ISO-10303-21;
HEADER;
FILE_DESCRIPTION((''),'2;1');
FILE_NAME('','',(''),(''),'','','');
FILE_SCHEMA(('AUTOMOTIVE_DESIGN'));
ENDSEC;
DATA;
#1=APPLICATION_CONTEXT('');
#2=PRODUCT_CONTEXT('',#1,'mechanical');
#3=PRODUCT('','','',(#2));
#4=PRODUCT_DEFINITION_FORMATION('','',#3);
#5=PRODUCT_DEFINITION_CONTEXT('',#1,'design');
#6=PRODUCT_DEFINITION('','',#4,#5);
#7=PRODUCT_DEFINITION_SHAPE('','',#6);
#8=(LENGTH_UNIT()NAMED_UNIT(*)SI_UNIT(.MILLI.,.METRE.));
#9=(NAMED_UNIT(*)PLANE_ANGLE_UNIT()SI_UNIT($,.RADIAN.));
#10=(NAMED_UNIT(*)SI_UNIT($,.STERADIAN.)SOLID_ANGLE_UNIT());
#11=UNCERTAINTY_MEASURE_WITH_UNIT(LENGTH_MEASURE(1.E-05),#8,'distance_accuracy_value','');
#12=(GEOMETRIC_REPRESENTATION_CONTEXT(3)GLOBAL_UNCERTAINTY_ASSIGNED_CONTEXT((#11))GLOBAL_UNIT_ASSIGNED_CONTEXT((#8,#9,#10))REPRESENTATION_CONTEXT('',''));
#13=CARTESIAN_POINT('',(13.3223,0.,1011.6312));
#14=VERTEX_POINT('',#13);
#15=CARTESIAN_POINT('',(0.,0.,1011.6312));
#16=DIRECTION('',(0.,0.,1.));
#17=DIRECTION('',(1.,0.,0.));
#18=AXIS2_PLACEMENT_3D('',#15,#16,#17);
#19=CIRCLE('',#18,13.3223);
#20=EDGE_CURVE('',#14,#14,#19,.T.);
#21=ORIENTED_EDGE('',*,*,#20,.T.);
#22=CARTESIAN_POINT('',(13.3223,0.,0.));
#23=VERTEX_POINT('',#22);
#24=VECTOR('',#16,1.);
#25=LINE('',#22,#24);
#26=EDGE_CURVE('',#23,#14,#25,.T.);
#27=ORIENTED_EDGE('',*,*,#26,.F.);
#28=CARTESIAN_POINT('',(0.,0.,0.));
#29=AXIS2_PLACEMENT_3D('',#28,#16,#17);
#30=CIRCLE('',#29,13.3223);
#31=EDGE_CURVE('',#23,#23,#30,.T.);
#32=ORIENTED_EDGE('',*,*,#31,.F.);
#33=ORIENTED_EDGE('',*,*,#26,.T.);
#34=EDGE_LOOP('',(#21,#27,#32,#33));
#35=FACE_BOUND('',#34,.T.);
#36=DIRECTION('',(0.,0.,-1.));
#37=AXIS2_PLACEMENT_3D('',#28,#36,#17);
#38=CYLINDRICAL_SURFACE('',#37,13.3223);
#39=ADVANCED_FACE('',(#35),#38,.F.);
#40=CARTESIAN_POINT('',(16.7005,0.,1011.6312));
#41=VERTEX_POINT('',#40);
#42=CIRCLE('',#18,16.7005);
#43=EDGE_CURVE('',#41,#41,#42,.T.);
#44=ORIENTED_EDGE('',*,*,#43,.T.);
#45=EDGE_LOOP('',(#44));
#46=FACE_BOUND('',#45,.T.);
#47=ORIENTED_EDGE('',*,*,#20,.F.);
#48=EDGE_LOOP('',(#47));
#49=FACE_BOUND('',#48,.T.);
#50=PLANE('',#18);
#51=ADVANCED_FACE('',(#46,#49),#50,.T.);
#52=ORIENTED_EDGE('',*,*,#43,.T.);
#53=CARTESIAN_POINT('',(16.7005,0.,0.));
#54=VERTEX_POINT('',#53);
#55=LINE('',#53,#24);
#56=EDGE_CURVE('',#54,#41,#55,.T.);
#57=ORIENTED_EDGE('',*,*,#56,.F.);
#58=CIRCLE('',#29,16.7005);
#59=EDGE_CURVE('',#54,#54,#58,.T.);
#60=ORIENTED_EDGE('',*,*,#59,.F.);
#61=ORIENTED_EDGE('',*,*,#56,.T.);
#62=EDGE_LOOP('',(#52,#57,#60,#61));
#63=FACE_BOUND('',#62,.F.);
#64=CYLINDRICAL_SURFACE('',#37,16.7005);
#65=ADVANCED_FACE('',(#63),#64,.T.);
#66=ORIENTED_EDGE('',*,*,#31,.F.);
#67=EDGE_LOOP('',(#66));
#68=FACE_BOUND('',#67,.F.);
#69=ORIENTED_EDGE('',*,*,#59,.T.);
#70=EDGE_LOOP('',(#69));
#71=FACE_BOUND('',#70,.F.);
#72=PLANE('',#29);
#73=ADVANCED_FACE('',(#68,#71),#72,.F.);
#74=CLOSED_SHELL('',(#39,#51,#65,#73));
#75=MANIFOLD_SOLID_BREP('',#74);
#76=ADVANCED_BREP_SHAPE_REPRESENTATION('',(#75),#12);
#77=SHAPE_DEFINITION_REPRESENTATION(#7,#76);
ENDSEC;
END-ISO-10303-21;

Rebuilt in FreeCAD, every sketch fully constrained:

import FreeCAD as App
import Part
import Sketcher
Q = App.Units.Quantity

doc = App.newDocument("Part")
body = doc.addObject("PartDesign::Body", "Body")

# Sketch on XY plane
sketch1 = body.newObject("Sketcher::SketchObject", "Sketch")
sketch1.AttachmentSupport = (doc.getObject("XY_Plane"), [""])
sketch1.MapMode = "FlatFace"
sketch1.addGeometry([
    Part.Circle(App.Vector(0, 0, 0), App.Vector(0, 0, 1), 17),
    Part.Circle(App.Vector(0, 0, 0), App.Vector(0, 0, 1), 13),
], False)
sketch1.addConstraint([
    Sketcher.Constraint("Coincident", 0, 3, -1, 1),
    Sketcher.Constraint("Coincident", 1, 3, -1, 1),
    Sketcher.Constraint("Diameter", 0, Q("1.315 in")),
    Sketcher.Constraint("Diameter", 1, Q("1.049 in")),
])
pad1 = body.newObject("PartDesign::Pad", "Pad")
pad1.Profile = sketch1
pad1.Length = Q("39.828 in")

doc.recompute()
